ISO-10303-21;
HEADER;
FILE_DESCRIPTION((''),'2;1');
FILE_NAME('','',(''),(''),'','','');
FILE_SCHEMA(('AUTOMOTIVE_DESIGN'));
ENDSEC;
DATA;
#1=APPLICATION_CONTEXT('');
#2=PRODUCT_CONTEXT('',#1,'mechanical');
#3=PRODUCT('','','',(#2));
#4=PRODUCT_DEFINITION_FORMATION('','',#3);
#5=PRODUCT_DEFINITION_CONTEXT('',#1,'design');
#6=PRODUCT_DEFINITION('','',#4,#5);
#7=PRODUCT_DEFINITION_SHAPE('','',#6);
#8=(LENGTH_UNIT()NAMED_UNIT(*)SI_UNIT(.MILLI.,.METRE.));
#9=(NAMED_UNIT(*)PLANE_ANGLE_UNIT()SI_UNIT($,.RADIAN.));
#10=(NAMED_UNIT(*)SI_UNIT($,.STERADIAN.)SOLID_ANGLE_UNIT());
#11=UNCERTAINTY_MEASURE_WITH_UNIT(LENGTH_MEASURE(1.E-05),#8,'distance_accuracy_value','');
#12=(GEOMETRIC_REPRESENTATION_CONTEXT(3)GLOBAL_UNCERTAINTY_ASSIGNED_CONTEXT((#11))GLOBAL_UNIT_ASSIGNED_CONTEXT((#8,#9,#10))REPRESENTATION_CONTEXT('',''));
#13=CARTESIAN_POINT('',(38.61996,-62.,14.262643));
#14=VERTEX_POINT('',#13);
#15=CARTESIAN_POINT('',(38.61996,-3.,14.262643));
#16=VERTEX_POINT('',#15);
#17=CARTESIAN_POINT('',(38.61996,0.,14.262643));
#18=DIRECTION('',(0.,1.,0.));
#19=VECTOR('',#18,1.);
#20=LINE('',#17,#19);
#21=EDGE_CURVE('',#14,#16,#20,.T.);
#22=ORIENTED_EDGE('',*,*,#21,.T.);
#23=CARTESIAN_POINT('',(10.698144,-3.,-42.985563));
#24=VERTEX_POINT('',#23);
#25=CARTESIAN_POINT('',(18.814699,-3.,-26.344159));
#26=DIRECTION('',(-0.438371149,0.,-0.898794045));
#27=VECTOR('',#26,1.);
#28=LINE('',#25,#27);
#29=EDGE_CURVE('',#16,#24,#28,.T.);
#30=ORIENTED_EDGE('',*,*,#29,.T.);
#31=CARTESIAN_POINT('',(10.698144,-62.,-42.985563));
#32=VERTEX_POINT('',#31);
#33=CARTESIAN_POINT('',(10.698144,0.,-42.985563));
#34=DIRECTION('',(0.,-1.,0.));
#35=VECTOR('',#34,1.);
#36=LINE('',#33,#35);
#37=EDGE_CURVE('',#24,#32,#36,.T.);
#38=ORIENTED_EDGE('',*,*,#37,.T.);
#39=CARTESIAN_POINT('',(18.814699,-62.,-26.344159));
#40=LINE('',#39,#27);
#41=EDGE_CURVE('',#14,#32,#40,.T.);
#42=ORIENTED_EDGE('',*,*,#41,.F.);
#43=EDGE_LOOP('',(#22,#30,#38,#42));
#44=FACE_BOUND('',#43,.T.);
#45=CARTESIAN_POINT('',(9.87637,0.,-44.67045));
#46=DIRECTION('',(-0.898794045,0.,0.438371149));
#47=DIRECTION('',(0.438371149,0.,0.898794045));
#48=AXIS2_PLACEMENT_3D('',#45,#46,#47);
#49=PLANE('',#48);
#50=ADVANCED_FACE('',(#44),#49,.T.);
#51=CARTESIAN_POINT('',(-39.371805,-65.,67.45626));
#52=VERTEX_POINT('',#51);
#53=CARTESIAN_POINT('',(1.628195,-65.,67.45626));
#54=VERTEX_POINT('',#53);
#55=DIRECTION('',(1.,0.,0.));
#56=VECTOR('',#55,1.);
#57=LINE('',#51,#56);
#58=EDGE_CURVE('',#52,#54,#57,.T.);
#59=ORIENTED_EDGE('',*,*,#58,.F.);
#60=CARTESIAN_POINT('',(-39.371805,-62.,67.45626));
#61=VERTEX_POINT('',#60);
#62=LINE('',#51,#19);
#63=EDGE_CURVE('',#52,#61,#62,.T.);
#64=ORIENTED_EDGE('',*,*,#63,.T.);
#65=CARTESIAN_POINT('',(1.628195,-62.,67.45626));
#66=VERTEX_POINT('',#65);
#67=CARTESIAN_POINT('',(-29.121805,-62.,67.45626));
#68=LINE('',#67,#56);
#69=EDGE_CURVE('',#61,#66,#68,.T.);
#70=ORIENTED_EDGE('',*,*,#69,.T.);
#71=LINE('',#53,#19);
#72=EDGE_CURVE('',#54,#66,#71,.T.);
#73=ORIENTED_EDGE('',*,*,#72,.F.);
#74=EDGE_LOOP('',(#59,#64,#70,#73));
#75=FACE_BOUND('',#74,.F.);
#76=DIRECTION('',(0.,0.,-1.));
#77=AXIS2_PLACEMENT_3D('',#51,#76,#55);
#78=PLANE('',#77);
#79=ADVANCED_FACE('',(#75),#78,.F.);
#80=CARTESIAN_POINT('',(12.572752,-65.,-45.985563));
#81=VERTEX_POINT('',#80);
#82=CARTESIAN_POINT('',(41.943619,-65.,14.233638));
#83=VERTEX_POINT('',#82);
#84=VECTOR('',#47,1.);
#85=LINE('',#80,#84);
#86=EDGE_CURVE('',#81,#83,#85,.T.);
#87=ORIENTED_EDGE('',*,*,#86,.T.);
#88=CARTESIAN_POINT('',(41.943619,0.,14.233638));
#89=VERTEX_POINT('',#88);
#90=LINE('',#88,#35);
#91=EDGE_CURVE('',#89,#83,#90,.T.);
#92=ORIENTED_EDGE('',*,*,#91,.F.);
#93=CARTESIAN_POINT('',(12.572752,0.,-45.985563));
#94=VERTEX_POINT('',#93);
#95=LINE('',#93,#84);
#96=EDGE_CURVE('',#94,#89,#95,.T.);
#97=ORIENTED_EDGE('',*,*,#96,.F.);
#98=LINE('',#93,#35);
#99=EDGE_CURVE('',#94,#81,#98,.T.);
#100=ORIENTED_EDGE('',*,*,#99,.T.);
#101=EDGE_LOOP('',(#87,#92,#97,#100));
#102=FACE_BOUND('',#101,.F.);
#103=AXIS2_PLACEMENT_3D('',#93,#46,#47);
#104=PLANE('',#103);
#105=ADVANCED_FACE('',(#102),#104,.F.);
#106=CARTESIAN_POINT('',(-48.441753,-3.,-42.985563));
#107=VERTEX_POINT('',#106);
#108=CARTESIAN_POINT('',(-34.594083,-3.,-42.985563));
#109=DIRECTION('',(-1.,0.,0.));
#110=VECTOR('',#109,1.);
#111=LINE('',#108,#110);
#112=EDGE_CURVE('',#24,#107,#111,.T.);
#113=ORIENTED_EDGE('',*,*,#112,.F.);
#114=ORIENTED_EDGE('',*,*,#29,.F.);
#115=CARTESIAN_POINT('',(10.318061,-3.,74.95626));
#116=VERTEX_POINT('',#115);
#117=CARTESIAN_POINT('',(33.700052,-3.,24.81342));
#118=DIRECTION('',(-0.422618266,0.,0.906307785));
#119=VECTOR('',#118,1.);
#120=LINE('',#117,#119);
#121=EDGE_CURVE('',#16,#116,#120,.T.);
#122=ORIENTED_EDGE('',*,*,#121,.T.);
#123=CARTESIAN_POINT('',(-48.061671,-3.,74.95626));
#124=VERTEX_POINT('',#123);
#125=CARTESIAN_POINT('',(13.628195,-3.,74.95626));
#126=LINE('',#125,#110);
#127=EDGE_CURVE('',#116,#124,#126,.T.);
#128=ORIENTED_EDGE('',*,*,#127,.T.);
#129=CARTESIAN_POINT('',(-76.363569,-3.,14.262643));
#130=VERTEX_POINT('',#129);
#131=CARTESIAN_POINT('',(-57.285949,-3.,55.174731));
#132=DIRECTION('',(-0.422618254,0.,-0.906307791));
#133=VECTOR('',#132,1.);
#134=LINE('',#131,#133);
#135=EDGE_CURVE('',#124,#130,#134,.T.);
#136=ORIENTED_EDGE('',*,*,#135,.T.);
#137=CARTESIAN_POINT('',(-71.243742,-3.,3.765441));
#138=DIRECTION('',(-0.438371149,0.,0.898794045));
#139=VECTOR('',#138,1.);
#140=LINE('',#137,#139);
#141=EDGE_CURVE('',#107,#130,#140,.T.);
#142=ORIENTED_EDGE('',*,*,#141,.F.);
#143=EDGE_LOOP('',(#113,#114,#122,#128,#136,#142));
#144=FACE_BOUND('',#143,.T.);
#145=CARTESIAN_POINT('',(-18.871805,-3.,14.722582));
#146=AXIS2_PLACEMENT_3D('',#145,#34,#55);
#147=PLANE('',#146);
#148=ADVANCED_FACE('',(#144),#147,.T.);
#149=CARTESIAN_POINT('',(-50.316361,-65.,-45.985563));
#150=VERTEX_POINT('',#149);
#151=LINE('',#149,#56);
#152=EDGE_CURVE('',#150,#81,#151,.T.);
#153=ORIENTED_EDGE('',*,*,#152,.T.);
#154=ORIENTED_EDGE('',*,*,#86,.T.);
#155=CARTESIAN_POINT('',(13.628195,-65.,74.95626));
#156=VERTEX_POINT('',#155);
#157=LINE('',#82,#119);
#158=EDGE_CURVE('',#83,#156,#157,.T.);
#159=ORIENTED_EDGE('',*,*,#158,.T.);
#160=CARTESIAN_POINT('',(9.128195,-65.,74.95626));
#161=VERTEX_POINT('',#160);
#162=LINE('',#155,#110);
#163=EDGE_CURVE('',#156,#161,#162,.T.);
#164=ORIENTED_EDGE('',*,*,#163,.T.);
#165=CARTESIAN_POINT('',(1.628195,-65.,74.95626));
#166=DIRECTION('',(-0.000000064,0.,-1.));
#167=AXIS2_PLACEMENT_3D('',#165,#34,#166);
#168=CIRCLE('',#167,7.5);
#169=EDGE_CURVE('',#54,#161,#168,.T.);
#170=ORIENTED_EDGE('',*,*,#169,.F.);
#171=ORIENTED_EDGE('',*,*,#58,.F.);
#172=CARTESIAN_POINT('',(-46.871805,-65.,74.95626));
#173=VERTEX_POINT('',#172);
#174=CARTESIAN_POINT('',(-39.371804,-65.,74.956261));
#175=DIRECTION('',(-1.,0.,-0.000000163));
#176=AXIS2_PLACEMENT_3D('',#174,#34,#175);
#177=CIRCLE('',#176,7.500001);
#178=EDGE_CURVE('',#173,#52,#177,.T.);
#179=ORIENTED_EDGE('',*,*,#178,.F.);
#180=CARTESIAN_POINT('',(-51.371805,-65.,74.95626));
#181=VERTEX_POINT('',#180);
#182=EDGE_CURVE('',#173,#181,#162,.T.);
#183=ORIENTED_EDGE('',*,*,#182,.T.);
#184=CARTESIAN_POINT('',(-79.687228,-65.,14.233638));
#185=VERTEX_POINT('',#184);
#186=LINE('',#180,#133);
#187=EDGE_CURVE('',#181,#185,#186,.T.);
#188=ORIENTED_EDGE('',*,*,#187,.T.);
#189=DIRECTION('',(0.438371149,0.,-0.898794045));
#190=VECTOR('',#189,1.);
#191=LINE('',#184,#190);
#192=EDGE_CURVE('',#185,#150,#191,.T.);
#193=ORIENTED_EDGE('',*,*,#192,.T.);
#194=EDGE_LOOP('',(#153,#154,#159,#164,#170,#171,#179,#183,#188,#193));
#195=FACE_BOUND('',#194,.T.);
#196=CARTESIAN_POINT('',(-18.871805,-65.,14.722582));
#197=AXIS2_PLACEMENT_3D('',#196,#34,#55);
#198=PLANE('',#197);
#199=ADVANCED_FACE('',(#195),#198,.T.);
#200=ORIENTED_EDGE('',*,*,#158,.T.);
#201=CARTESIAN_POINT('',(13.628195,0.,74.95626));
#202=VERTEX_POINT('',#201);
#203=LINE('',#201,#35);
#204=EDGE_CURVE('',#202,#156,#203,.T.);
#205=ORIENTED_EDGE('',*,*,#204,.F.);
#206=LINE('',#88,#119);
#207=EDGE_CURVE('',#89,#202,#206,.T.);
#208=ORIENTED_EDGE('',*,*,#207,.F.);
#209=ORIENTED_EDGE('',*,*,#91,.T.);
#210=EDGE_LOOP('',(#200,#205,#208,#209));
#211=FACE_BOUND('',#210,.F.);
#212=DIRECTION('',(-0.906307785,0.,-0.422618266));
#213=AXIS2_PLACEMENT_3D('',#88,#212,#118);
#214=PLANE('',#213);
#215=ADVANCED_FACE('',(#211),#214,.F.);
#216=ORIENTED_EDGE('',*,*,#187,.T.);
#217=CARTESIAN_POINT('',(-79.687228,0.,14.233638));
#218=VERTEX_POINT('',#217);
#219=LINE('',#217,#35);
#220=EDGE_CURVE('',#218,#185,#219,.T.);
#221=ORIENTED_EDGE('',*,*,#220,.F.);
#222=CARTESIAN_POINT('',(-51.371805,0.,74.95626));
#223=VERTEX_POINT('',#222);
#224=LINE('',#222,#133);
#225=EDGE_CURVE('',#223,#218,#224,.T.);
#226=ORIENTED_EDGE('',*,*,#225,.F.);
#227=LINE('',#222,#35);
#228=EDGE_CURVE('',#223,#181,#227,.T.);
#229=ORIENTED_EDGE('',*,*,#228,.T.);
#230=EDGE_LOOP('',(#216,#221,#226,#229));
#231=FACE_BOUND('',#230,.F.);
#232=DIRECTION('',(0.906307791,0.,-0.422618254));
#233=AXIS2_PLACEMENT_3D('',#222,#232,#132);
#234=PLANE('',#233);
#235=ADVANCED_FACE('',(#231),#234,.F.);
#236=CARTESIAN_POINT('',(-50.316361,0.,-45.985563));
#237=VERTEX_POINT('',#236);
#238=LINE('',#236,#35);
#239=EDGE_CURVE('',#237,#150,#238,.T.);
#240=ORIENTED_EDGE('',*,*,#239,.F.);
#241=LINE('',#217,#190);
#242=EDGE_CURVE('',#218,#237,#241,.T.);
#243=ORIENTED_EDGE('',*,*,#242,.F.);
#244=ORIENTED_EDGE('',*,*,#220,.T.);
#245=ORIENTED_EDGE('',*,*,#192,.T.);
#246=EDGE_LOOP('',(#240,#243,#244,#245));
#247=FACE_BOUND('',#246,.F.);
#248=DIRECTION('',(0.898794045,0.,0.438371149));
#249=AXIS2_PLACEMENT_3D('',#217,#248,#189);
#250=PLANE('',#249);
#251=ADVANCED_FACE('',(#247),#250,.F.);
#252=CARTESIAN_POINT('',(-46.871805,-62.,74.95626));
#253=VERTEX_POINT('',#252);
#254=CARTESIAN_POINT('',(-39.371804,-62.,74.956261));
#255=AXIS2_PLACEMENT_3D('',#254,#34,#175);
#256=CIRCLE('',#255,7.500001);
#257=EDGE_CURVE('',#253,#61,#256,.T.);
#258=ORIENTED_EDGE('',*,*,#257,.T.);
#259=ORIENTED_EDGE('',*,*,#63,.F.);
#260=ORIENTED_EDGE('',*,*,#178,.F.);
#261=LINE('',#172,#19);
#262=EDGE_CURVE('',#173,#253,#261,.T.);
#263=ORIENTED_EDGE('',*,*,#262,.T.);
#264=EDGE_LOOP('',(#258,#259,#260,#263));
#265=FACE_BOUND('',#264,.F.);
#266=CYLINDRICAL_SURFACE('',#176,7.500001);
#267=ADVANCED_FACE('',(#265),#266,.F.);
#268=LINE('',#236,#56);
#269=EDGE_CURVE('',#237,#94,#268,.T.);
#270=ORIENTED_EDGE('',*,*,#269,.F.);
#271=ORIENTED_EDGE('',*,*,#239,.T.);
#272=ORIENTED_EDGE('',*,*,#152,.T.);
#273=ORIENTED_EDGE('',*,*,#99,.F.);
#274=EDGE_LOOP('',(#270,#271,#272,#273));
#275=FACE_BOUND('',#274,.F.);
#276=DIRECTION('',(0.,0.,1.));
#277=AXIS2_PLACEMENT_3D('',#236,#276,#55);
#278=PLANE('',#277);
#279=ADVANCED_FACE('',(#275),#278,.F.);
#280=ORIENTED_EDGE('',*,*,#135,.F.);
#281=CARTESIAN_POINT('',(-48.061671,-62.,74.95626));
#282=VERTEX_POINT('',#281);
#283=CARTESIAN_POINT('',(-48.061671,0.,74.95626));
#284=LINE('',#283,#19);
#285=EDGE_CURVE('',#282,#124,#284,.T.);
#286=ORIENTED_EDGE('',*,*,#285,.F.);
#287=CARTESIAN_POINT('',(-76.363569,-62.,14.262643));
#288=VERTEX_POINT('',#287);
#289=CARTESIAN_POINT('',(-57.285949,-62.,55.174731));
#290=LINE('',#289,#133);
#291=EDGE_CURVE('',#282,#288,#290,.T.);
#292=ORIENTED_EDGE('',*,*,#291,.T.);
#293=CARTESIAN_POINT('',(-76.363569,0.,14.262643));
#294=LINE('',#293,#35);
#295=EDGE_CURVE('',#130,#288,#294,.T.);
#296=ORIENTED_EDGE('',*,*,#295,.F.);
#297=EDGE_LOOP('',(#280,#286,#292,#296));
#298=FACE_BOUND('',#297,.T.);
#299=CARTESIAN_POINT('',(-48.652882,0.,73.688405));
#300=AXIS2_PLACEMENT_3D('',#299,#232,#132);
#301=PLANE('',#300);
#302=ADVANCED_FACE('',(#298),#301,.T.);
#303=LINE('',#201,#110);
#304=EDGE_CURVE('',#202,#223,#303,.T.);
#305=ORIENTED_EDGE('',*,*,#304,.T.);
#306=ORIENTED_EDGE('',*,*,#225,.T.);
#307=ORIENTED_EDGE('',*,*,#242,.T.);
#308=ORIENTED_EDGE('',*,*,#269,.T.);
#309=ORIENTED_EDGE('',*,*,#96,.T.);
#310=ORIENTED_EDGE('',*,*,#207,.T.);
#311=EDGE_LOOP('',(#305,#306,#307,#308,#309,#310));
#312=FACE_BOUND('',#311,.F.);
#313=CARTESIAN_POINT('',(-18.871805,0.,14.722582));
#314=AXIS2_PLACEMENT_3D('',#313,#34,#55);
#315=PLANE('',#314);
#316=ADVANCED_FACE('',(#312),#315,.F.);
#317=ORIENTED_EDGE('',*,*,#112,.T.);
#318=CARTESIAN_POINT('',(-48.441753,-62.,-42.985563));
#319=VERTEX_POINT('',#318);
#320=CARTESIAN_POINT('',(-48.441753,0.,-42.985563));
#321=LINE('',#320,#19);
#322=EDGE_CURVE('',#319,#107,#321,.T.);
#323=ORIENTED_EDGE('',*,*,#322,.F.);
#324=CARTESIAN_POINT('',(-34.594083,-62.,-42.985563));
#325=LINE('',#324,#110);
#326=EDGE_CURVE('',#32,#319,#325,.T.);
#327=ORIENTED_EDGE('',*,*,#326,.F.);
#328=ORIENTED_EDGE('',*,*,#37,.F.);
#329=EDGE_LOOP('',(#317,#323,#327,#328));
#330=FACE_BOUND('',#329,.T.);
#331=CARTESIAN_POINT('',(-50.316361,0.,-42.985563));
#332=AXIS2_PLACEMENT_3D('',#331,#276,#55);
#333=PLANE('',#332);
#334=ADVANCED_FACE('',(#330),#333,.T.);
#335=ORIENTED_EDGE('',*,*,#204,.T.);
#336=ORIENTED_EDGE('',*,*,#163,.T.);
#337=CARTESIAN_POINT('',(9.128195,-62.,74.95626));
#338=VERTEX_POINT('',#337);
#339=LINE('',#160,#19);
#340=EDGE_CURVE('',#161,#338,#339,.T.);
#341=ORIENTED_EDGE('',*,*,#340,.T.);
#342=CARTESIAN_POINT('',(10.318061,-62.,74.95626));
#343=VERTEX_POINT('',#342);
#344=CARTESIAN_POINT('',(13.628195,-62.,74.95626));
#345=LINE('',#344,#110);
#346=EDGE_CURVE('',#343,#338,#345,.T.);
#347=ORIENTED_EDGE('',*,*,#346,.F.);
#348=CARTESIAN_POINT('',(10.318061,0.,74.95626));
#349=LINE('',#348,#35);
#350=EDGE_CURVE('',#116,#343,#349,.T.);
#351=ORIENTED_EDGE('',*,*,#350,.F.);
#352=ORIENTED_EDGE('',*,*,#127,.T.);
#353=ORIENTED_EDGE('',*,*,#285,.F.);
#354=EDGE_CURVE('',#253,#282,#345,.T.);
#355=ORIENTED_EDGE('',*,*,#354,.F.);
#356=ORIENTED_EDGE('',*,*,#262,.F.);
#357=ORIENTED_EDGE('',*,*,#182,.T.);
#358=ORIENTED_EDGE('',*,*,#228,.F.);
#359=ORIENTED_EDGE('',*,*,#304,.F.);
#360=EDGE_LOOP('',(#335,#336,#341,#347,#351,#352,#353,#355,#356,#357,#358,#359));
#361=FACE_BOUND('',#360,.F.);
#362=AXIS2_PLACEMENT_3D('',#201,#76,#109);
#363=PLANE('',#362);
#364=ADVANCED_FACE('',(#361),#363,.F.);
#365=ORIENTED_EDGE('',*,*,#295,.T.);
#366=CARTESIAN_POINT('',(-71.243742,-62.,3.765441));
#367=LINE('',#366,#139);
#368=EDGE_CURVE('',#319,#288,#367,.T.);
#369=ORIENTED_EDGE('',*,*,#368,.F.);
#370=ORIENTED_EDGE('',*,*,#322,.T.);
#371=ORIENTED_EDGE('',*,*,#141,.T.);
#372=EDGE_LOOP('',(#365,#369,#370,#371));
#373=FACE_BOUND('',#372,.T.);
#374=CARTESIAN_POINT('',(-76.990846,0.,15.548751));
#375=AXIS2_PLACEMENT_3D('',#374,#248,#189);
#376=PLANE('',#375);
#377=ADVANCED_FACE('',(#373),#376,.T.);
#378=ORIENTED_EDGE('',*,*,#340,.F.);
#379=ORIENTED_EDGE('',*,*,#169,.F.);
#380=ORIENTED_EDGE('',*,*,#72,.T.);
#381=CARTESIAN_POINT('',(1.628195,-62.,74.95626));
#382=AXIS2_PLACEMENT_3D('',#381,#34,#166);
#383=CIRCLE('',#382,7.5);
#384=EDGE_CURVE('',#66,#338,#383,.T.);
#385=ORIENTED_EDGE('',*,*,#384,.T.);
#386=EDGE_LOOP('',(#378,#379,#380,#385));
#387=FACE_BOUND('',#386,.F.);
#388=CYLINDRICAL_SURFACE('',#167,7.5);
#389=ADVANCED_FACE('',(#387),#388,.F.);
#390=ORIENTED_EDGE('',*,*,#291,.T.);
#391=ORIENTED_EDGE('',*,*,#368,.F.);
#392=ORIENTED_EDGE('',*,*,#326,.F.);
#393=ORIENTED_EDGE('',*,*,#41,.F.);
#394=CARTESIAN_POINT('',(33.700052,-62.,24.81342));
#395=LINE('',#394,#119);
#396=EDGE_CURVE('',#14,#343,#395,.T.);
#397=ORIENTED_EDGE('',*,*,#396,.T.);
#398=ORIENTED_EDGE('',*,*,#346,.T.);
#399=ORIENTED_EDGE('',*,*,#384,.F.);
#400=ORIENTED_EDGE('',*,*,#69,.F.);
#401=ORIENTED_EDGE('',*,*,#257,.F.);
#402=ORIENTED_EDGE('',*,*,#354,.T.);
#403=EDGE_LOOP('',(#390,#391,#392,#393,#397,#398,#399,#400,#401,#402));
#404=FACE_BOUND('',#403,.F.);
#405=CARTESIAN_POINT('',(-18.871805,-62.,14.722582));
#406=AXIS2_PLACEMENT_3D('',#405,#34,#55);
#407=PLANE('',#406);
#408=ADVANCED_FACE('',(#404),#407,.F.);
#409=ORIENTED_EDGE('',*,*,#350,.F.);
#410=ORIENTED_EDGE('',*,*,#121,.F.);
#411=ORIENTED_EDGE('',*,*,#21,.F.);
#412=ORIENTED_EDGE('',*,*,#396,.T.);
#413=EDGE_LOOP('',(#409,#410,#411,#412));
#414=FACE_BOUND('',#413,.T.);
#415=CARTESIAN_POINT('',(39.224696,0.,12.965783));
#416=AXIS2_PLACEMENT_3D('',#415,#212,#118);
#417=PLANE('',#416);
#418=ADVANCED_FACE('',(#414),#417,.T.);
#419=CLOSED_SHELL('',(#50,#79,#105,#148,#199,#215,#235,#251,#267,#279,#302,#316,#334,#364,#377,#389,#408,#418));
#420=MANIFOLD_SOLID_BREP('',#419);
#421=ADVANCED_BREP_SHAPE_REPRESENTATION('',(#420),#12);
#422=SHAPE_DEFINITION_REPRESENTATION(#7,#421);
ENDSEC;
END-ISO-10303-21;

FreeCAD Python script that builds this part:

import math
import FreeCAD as App
import Part
import Sketcher
Q = App.Units.Quantity


def faces_at(feature, points):
    """Names of the faces that lie closest to the given points."""
    faces = feature.Shape.Faces
    near = lambda p: min(range(len(faces)), key=lambda i: faces[i].distToShape(Part.Vertex(*p))[0])
    return sorted({f"Face{near(p) + 1}" for p in points})

doc = App.newDocument("Part")
body = doc.addObject("PartDesign::Body", "Body")

sketch1 = doc.addObject("Sketcher::SketchObject", "Sketch")
body.addObject(sketch1)
sketch1.AttachmentSupport = (doc.XZ_Plane, [""])
sketch1.MapMode = "FlatFace"
sketch1.addGeometry([
    Part.LineSegment(App.Vector(14, 75, 0), App.Vector(-51, 75, 0)),
    Part.LineSegment(App.Vector(-51, 75, 0), App.Vector(-80, 14, 0)),
    Part.LineSegment(App.Vector(-80, 14, 0), App.Vector(-50, -46, 0)),
    Part.LineSegment(App.Vector(-50, -46, 0), App.Vector(13, -46, 0)),
    Part.LineSegment(App.Vector(13, -46, 0), App.Vector(42, 14, 0)),
    Part.LineSegment(App.Vector(42, 14, 0), App.Vector(14, 75, 0)),
], False)
sketch1.addConstraint([
    Sketcher.Constraint("Coincident", 0, 2, 1, 1),
    Sketcher.Constraint("Coincident", 1, 2, 2, 1),
    Sketcher.Constraint("Coincident", 2, 2, 3, 1),
    Sketcher.Constraint("Coincident", 3, 2, 4, 1),
    Sketcher.Constraint("Coincident", 4, 2, 5, 1),
    Sketcher.Constraint("Coincident", 5, 2, 0, 1),
    Sketcher.Constraint("Horizontal", 0),
    Sketcher.Constraint("Horizontal", 3),
    Sketcher.Constraint("Horizontal", 1, 2, 4, 2),
    Sketcher.Constraint("Equal", 1, 2),
    Sketcher.Constraint("Equal", 2, 4),
    Sketcher.Constraint("Equal", 4, 5),
    Sketcher.Constraint("DistanceX", 0, 2, 0, 1, 65.0),
    Sketcher.Constraint("Angle", 1, Q("-114.999999 deg")),
    Sketcher.Constraint("Angle", 2, Q("-64 deg")),
    Sketcher.Constraint("Distance", 1, 67.0),
    Sketcher.Constraint("DistanceY", -1, 1, 0, 2, 74.95626),
    Sketcher.Constraint("DistanceX", 1, 2, -1, 1, 79.687228),
])
pad1 = doc.addObject("PartDesign::Pad", "Pad")
body.addObject(pad1)
pad1.Profile = sketch1
pad1.Length = 65
doc.recompute()

thickness = doc.addObject("PartDesign::Thickness", "Thickness")
body.addObject(thickness)
thickness.Base = (pad1, faces_at(pad1, [(-18.872, -32.5, 74.956)]))
thickness.Value = 3
thickness.Reversed = True
thickness.Join = "Arc"

sketch2 = doc.addObject("Sketcher::SketchObject", "Sketch001")
body.addObject(sketch2)
sketch2.AttachmentSupport = (doc.XZ_Plane, [""])
sketch2.MapMode = "FlatFace"
sketch2.AttachmentOffset = App.Placement(App.Vector(0, 0, 65), App.Rotation())
sketch2.addGeometry([
    Part.ArcOfCircle(Part.Circle(App.Vector(-39, 75, 0), App.Vector(0, 0, 1), 8), math.radians(-180), math.radians(-90)),
    Part.LineSegment(App.Vector(-39, 67, 0), App.Vector(2, 67, 0)),
    Part.ArcOfCircle(Part.Circle(App.Vector(2, 75, 0), App.Vector(0, 0, 1), 7), math.radians(-90), math.radians(0)),
    Part.LineSegment(App.Vector(9, 75, 0), App.Vector(-47, 75, 0)),
], False)
sketch2.addConstraint([
    Sketcher.Constraint("Tangent", 0, 2, 1, 1),
    Sketcher.Constraint("Tangent", 1, 2, 2, 1),
    Sketcher.Constraint("Coincident", 2, 2, 3, 1),
    Sketcher.Constraint("Coincident", 3, 2, 0, 1),
    Sketcher.Constraint("Horizontal", 1),
    Sketcher.Constraint("Horizontal", 3),
    Sketcher.Constraint("Equal", 0, 2),
    Sketcher.Constraint("Horizontal", 0, 3, 2, 2),
    Sketcher.Constraint("Radius", 0, 7.500001),
    Sketcher.Constraint("DistanceX", 1, 1, 1, 2, 41.0),
    Sketcher.Constraint("DistanceY", -1, 1, 0, 3, 74.956261),
    Sketcher.Constraint("DistanceX", 0, 3, -1, 1, 39.371804),
])
pocket1 = doc.addObject("PartDesign::Pocket", "Pocket")
body.addObject(pocket1)
pocket1.Profile = sketch2
pocket1.Length = 25

doc.recompute()
